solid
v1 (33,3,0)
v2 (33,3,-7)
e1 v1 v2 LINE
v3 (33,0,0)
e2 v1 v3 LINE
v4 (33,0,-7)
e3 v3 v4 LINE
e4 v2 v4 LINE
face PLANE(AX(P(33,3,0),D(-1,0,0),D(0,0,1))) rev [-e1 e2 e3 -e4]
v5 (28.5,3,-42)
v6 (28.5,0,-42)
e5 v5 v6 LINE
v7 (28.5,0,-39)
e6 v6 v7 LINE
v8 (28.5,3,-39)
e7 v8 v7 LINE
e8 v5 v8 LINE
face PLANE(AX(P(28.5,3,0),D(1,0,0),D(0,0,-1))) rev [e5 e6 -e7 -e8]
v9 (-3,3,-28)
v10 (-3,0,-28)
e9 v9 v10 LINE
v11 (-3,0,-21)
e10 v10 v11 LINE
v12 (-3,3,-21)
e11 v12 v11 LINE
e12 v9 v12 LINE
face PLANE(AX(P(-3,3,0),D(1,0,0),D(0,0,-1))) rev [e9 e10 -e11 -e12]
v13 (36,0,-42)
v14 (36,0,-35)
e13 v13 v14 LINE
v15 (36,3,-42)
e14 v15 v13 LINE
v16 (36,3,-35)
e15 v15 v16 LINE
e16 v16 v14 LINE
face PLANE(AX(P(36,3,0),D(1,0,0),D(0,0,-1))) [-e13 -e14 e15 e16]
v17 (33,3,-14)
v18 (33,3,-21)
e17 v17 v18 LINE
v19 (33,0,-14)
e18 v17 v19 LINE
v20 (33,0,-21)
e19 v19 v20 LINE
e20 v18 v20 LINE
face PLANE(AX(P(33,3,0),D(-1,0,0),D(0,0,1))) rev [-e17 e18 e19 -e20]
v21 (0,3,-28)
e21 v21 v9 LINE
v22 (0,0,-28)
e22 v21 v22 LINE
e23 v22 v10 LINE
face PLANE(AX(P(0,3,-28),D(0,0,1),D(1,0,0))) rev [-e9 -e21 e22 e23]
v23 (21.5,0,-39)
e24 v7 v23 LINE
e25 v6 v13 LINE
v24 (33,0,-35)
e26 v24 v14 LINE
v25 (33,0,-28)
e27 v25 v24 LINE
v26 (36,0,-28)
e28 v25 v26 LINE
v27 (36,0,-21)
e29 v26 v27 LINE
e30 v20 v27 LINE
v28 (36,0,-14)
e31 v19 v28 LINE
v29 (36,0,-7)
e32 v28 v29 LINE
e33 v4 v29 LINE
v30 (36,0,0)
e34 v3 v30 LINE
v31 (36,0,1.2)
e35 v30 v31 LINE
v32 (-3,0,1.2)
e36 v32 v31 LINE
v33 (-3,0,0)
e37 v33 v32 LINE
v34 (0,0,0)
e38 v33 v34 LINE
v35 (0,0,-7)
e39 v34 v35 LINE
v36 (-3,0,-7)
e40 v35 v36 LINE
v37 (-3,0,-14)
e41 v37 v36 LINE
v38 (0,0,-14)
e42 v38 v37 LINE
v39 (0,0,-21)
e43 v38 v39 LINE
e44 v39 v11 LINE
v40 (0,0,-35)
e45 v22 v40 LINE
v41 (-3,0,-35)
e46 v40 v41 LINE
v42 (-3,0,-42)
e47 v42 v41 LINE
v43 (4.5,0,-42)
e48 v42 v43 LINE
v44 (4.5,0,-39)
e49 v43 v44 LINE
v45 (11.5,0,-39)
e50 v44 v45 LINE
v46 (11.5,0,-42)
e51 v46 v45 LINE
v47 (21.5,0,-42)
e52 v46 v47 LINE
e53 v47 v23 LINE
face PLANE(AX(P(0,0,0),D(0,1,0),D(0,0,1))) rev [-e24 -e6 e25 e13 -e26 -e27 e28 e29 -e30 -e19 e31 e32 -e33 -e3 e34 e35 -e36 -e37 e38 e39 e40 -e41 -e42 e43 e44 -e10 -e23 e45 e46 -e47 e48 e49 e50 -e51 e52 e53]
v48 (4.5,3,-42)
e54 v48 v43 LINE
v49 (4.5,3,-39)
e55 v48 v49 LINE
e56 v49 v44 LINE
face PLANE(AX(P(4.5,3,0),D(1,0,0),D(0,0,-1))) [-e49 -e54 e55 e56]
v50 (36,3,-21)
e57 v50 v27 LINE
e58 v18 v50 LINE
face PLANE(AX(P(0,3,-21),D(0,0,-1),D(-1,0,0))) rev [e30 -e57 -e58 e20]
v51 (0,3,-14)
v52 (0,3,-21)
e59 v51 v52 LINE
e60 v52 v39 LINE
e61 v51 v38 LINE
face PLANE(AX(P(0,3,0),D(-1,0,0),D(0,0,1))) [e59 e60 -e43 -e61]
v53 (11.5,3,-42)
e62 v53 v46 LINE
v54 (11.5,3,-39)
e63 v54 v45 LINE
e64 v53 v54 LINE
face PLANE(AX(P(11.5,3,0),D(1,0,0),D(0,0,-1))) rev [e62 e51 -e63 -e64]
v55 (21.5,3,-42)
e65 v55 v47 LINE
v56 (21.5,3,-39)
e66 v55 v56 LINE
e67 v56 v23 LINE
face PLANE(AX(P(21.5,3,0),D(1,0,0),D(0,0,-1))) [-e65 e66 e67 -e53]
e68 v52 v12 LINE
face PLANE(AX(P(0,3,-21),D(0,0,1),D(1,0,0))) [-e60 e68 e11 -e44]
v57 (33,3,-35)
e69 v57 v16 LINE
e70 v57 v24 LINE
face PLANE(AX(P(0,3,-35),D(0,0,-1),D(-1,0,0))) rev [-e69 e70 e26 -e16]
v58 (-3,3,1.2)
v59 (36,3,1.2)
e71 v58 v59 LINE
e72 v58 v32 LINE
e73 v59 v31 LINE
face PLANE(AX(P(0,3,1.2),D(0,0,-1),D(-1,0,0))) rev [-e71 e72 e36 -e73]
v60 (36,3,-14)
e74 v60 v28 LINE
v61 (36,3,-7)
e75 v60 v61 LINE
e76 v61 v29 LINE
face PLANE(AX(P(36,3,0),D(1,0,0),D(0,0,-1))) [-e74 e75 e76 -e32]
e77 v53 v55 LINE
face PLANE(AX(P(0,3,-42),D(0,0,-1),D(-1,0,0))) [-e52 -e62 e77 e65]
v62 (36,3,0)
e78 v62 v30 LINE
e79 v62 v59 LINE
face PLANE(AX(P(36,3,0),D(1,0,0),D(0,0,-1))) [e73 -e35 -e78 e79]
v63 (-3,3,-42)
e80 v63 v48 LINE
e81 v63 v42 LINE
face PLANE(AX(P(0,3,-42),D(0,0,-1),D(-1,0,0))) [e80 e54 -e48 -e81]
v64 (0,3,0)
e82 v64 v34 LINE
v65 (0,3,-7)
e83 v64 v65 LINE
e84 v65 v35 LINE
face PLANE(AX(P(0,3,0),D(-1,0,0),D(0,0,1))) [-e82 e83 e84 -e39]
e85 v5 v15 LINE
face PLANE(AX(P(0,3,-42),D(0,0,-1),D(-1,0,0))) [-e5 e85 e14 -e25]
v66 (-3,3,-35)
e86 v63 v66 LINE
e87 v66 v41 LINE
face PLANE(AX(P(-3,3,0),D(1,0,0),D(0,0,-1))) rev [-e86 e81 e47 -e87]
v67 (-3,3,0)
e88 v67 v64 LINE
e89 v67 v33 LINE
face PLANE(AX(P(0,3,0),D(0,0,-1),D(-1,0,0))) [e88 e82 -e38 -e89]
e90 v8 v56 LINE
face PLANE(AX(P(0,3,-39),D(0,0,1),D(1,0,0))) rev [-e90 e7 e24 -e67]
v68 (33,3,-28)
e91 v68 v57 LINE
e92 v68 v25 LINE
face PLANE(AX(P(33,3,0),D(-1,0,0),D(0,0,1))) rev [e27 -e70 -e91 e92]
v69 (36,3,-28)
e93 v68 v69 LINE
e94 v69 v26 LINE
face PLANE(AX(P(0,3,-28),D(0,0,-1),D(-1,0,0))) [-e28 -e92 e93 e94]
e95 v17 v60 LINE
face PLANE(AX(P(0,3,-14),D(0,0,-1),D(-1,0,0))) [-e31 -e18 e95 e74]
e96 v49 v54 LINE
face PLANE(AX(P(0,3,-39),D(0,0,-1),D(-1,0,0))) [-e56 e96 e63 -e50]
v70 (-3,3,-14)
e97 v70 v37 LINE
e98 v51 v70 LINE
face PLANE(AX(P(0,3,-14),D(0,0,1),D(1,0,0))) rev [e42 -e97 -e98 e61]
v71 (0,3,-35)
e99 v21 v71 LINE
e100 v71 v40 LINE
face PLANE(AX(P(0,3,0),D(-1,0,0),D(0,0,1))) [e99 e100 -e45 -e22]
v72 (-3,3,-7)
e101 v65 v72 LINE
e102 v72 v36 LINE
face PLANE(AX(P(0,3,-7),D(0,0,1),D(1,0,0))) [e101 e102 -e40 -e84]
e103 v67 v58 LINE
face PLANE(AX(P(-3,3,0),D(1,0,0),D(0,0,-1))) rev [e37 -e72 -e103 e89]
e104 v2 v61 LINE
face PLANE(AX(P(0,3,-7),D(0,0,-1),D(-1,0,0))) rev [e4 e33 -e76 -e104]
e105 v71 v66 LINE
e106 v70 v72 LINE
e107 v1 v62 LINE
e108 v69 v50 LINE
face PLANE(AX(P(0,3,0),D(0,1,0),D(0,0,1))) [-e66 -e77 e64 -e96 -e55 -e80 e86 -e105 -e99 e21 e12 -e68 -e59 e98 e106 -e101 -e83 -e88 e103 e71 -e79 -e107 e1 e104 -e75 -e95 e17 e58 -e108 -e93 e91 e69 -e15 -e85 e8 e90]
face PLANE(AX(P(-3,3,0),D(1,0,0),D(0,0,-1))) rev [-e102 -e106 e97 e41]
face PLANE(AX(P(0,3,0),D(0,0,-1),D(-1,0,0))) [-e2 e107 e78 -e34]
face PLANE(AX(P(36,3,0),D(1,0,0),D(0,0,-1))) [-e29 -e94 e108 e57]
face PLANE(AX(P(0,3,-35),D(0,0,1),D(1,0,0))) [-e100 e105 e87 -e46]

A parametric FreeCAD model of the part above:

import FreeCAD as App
import Part
import Sketcher
Q = App.Units.Quantity

doc = App.newDocument("Part")
body = doc.addObject("PartDesign::Body", "Body")

sketch1 = body.newObject("Sketcher::SketchObject", "Sketch")
sketch1.AttachmentSupport = (doc.getObject("XZ_Plane"), [""])
sketch1.MapMode = "FlatFace"
sketch1.addGeometry([
    Part.LineSegment(App.Vector(33, 0, 0), App.Vector(33, -7, 0)),
    Part.LineSegment(App.Vector(33, -7, 0), App.Vector(36, -7, 0)),
    Part.LineSegment(App.Vector(36, -7, 0), App.Vector(36, -14, 0)),
    Part.LineSegment(App.Vector(36, -14, 0), App.Vector(33, -14, 0)),
    Part.LineSegment(App.Vector(33, -14, 0), App.Vector(33, -21, 0)),
    Part.LineSegment(App.Vector(33, -21, 0), App.Vector(36, -21, 0)),
    Part.LineSegment(App.Vector(36, -21, 0), App.Vector(36, -28, 0)),
    Part.LineSegment(App.Vector(36, -28, 0), App.Vector(33, -28, 0)),
    Part.LineSegment(App.Vector(33, -28, 0), App.Vector(33, -35, 0)),
    Part.LineSegment(App.Vector(33, -35, 0), App.Vector(36, -35, 0)),
    Part.LineSegment(App.Vector(36, -35, 0), App.Vector(36, -42, 0)),
    Part.LineSegment(App.Vector(36, -42, 0), App.Vector(28.5, -42, 0)),
    Part.LineSegment(App.Vector(28.5, -42, 0), App.Vector(28.5, -39, 0)),
    Part.LineSegment(App.Vector(28.5, -39, 0), App.Vector(21.5, -39, 0)),
    Part.LineSegment(App.Vector(21.5, -39, 0), App.Vector(21.5, -42, 0)),
    Part.LineSegment(App.Vector(21.5, -42, 0), App.Vector(11.5, -42, 0)),
    Part.LineSegment(App.Vector(11.5, -42, 0), App.Vector(11.5, -39, 0)),
    Part.LineSegment(App.Vector(11.5, -39, 0), App.Vector(4.5, -39, 0)),
    Part.LineSegment(App.Vector(4.5, -39, 0), App.Vector(4.5, -42, 0)),
    Part.LineSegment(App.Vector(4.5, -42, 0), App.Vector(-3, -42, 0)),
    Part.LineSegment(App.Vector(-3, -42, 0), App.Vector(-3, -35, 0)),
    Part.LineSegment(App.Vector(-3, -35, 0), App.Vector(0, -35, 0)),
    Part.LineSegment(App.Vector(0, -35, 0), App.Vector(0, -28, 0)),
    Part.LineSegment(App.Vector(0, -28, 0), App.Vector(-3, -28, 0)),
    Part.LineSegment(App.Vector(-3, -28, 0), App.Vector(-3, -21, 0)),
    Part.LineSegment(App.Vector(-3, -21, 0), App.Vector(0, -21, 0)),
    Part.LineSegment(App.Vector(0, -21, 0), App.Vector(0, -14, 0)),
    Part.LineSegment(App.Vector(0, -14, 0), App.Vector(-3, -14, 0)),
    Part.LineSegment(App.Vector(-3, -14, 0), App.Vector(-3, -7, 0)),
    Part.LineSegment(App.Vector(-3, -7, 0), App.Vector(0, -7, 0)),
    Part.LineSegment(App.Vector(0, -7, 0), App.Vector(0, 0, 0)),
    Part.LineSegment(App.Vector(0, 0, 0), App.Vector(-3, 0, 0)),
    Part.LineSegment(App.Vector(-3, 0, 0), App.Vector(-3, 1.2, 0)),
    Part.LineSegment(App.Vector(-3, 1.2, 0), App.Vector(36, 1.2, 0)),
    Part.LineSegment(App.Vector(36, 1.2, 0), App.Vector(36, 0, 0)),
    Part.LineSegment(App.Vector(36, 0, 0), App.Vector(33, 0, 0)),
], False)
sketch1.addConstraint([
    Sketcher.Constraint("Coincident", 0, 2, 1, 1),
    Sketcher.Constraint("Coincident", 1, 2, 2, 1),
    Sketcher.Constraint("Coincident", 2, 2, 3, 1),
    Sketcher.Constraint("Coincident", 3, 2, 4, 1),
    Sketcher.Constraint("Coincident", 4, 2, 5, 1),
    Sketcher.Constraint("Coincident", 5, 2, 6, 1),
    Sketcher.Constraint("Coincident", 6, 2, 7, 1),
    Sketcher.Constraint("Coincident", 7, 2, 8, 1),
    Sketcher.Constraint("Coincident", 8, 2, 9, 1),
    Sketcher.Constraint("Coincident", 9, 2, 10, 1),
    Sketcher.Constraint("Coincident", 10, 2, 11, 1),
    Sketcher.Constraint("Coincident", 11, 2, 12, 1),
    Sketcher.Constraint("Coincident", 12, 2, 13, 1),
    Sketcher.Constraint("Coincident", 13, 2, 14, 1),
    Sketcher.Constraint("Coincident", 14, 2, 15, 1),
    Sketcher.Constraint("Coincident", 15, 2, 16, 1),
    Sketcher.Constraint("Coincident", 16, 2, 17, 1),
    Sketcher.Constraint("Coincident", 17, 2, 18, 1),
    Sketcher.Constraint("Coincident", 18, 2, 19, 1),
    Sketcher.Constraint("Coincident", 19, 2, 20, 1),
    Sketcher.Constraint("Coincident", 20, 2, 21, 1),
    Sketcher.Constraint("Coincident", 21, 2, 22, 1),
    Sketcher.Constraint("Coincident", 22, 2, 23, 1),
    Sketcher.Constraint("Coincident", 23, 2, 24, 1),
    Sketcher.Constraint("Coincident", 24, 2, 25, 1),
    Sketcher.Constraint("Coincident", 25, 2, 26, 1),
    Sketcher.Constraint("Coincident", 26, 2, 27, 1),
    Sketcher.Constraint("Coincident", 27, 2, 28, 1),
    Sketcher.Constraint("Coincident", 28, 2, 29, 1),
    Sketcher.Constraint("Coincident", 29, 2, 30, 1),
    Sketcher.Constraint("Coincident", 30, 2, 31, 1),
    Sketcher.Constraint("Coincident", 31, 2, 32, 1),
    Sketcher.Constraint("Coincident", 32, 2, 33, 1),
    Sketcher.Constraint("Coincident", 33, 2, 34, 1),
    Sketcher.Constraint("Coincident", 34, 2, 35, 1),
    Sketcher.Constraint("Coincident", 35, 2, 0, 1),
    Sketcher.Constraint("Vertical", 0),
    Sketcher.Constraint("Horizontal", 1),
    Sketcher.Constraint("Vertical", 2),
    Sketcher.Constraint("Horizontal", 3),
    Sketcher.Constraint("Vertical", 4),
    Sketcher.Constraint("Horizontal", 5),
    Sketcher.Constraint("Vertical", 6),
    Sketcher.Constraint("Horizontal", 7),
    Sketcher.Constraint("Vertical", 8),
    Sketcher.Constraint("Horizontal", 9),
    Sketcher.Constraint("Vertical", 10),
    Sketcher.Constraint("Horizontal", 11),
    Sketcher.Constraint("Vertical", 12),
    Sketcher.Constraint("Horizontal", 13),
    Sketcher.Constraint("Vertical", 14),
    Sketcher.Constraint("Horizontal", 15),
    Sketcher.Constraint("Vertical", 16),
    Sketcher.Constraint("Horizontal", 17),
    Sketcher.Constraint("Vertical", 18),
    Sketcher.Constraint("Horizontal", 19),
    Sketcher.Constraint("Vertical", 20),
    Sketcher.Constraint("Horizontal", 21),
    Sketcher.Constraint("Vertical", 22),
    Sketcher.Constraint("Horizontal", 23),
    Sketcher.Constraint("Vertical", 24),
    Sketcher.Constraint("Horizontal", 25),
    Sketcher.Constraint("Vertical", 26),
    Sketcher.Constraint("Horizontal", 27),
    Sketcher.Constraint("Vertical", 28),
    Sketcher.Constraint("Horizontal", 29),
    Sketcher.Constraint("Vertical", 30),
    Sketcher.Constraint("Horizontal", 31),
    Sketcher.Constraint("Vertical", 32),
    Sketcher.Constraint("Horizontal", 33),
    Sketcher.Constraint("Vertical", 34),
    Sketcher.Constraint("Horizontal", 35),
    Sketcher.Constraint("Coincident", 30, 2, -1, 1),
    Sketcher.Constraint("PointOnObject", 21, 2, -2),
    Sketcher.Constraint("PointOnObject", 25, 2, -2),
    Sketcher.Constraint("PointOnObject", 34, 2, -1),
    Sketcher.Constraint("Horizontal", 11, 2, 14, 2),
    Sketcher.Constraint("Horizontal", 13, 2, 16, 2),
    Sketcher.Constraint("Horizontal", 15, 2, 18, 2),
    Sketcher.Constraint("Horizontal", 9, 2, 20, 2),
    Sketcher.Constraint("Horizontal", 7, 2, 22, 2),
    Sketcher.Constraint("Horizontal", 5, 2, 24, 2),
    Sketcher.Constraint("Horizontal", 3, 2, 26, 2),
    Sketcher.Constraint("Horizontal", 1, 2, 28, 2),
    Sketcher.Constraint("Vertical", 0, 2, 3, 2),
    Sketcher.Constraint("Vertical", 2, 2, 5, 2),
    Sketcher.Constraint("Vertical", 4, 2, 7, 2),
    Sketcher.Constraint("Vertical", 6, 2, 9, 2),
    Sketcher.Constraint("Vertical", 20, 2, 23, 2),
    Sketcher.Constraint("Vertical", 24, 2, 27, 2),
    Sketcher.Constraint("Vertical", 28, 2, 31, 2),
    Sketcher.Constraint("Vertical", 10, 2, 33, 2),
    Sketcher.Constraint("Equal", 13, 17),
    Sketcher.Constraint("Equal", 11, 19),
    Sketcher.Constraint("Equal", 9, 21),
    Sketcher.Constraint("Equal", 17, 0),
    Sketcher.Constraint("Equal", 0, 2),
    Sketcher.Constraint("Equal", 2, 4),
    Sketcher.Constraint("Equal", 4, 6),
    Sketcher.Constraint("Equal", 6, 8),
    Sketcher.Constraint("Equal", 8, 10),
    Sketcher.Constraint("Equal", 35, 12),
    Sketcher.Constraint("DistanceX", 1, 1, 1, 2, Q("3 mm")),
    Sketcher.Constraint("DistanceX", 13, 2, 13, 1, Q("7 mm")),
    Sketcher.Constraint("DistanceX", 15, 2, 15, 1, Q("10 mm")),
    Sketcher.Constraint("DistanceX", 33, 1, 33, 2, Q("39 mm")),
    Sketcher.Constraint("DistanceY", 32, 1, 32, 2, Q("1.2 mm")),
])
pad1 = body.newObject("PartDesign::Pad", "Pad")
pad1.Profile = sketch1
pad1.Length = 3
pad1.Reversed = True

doc.recompute()
